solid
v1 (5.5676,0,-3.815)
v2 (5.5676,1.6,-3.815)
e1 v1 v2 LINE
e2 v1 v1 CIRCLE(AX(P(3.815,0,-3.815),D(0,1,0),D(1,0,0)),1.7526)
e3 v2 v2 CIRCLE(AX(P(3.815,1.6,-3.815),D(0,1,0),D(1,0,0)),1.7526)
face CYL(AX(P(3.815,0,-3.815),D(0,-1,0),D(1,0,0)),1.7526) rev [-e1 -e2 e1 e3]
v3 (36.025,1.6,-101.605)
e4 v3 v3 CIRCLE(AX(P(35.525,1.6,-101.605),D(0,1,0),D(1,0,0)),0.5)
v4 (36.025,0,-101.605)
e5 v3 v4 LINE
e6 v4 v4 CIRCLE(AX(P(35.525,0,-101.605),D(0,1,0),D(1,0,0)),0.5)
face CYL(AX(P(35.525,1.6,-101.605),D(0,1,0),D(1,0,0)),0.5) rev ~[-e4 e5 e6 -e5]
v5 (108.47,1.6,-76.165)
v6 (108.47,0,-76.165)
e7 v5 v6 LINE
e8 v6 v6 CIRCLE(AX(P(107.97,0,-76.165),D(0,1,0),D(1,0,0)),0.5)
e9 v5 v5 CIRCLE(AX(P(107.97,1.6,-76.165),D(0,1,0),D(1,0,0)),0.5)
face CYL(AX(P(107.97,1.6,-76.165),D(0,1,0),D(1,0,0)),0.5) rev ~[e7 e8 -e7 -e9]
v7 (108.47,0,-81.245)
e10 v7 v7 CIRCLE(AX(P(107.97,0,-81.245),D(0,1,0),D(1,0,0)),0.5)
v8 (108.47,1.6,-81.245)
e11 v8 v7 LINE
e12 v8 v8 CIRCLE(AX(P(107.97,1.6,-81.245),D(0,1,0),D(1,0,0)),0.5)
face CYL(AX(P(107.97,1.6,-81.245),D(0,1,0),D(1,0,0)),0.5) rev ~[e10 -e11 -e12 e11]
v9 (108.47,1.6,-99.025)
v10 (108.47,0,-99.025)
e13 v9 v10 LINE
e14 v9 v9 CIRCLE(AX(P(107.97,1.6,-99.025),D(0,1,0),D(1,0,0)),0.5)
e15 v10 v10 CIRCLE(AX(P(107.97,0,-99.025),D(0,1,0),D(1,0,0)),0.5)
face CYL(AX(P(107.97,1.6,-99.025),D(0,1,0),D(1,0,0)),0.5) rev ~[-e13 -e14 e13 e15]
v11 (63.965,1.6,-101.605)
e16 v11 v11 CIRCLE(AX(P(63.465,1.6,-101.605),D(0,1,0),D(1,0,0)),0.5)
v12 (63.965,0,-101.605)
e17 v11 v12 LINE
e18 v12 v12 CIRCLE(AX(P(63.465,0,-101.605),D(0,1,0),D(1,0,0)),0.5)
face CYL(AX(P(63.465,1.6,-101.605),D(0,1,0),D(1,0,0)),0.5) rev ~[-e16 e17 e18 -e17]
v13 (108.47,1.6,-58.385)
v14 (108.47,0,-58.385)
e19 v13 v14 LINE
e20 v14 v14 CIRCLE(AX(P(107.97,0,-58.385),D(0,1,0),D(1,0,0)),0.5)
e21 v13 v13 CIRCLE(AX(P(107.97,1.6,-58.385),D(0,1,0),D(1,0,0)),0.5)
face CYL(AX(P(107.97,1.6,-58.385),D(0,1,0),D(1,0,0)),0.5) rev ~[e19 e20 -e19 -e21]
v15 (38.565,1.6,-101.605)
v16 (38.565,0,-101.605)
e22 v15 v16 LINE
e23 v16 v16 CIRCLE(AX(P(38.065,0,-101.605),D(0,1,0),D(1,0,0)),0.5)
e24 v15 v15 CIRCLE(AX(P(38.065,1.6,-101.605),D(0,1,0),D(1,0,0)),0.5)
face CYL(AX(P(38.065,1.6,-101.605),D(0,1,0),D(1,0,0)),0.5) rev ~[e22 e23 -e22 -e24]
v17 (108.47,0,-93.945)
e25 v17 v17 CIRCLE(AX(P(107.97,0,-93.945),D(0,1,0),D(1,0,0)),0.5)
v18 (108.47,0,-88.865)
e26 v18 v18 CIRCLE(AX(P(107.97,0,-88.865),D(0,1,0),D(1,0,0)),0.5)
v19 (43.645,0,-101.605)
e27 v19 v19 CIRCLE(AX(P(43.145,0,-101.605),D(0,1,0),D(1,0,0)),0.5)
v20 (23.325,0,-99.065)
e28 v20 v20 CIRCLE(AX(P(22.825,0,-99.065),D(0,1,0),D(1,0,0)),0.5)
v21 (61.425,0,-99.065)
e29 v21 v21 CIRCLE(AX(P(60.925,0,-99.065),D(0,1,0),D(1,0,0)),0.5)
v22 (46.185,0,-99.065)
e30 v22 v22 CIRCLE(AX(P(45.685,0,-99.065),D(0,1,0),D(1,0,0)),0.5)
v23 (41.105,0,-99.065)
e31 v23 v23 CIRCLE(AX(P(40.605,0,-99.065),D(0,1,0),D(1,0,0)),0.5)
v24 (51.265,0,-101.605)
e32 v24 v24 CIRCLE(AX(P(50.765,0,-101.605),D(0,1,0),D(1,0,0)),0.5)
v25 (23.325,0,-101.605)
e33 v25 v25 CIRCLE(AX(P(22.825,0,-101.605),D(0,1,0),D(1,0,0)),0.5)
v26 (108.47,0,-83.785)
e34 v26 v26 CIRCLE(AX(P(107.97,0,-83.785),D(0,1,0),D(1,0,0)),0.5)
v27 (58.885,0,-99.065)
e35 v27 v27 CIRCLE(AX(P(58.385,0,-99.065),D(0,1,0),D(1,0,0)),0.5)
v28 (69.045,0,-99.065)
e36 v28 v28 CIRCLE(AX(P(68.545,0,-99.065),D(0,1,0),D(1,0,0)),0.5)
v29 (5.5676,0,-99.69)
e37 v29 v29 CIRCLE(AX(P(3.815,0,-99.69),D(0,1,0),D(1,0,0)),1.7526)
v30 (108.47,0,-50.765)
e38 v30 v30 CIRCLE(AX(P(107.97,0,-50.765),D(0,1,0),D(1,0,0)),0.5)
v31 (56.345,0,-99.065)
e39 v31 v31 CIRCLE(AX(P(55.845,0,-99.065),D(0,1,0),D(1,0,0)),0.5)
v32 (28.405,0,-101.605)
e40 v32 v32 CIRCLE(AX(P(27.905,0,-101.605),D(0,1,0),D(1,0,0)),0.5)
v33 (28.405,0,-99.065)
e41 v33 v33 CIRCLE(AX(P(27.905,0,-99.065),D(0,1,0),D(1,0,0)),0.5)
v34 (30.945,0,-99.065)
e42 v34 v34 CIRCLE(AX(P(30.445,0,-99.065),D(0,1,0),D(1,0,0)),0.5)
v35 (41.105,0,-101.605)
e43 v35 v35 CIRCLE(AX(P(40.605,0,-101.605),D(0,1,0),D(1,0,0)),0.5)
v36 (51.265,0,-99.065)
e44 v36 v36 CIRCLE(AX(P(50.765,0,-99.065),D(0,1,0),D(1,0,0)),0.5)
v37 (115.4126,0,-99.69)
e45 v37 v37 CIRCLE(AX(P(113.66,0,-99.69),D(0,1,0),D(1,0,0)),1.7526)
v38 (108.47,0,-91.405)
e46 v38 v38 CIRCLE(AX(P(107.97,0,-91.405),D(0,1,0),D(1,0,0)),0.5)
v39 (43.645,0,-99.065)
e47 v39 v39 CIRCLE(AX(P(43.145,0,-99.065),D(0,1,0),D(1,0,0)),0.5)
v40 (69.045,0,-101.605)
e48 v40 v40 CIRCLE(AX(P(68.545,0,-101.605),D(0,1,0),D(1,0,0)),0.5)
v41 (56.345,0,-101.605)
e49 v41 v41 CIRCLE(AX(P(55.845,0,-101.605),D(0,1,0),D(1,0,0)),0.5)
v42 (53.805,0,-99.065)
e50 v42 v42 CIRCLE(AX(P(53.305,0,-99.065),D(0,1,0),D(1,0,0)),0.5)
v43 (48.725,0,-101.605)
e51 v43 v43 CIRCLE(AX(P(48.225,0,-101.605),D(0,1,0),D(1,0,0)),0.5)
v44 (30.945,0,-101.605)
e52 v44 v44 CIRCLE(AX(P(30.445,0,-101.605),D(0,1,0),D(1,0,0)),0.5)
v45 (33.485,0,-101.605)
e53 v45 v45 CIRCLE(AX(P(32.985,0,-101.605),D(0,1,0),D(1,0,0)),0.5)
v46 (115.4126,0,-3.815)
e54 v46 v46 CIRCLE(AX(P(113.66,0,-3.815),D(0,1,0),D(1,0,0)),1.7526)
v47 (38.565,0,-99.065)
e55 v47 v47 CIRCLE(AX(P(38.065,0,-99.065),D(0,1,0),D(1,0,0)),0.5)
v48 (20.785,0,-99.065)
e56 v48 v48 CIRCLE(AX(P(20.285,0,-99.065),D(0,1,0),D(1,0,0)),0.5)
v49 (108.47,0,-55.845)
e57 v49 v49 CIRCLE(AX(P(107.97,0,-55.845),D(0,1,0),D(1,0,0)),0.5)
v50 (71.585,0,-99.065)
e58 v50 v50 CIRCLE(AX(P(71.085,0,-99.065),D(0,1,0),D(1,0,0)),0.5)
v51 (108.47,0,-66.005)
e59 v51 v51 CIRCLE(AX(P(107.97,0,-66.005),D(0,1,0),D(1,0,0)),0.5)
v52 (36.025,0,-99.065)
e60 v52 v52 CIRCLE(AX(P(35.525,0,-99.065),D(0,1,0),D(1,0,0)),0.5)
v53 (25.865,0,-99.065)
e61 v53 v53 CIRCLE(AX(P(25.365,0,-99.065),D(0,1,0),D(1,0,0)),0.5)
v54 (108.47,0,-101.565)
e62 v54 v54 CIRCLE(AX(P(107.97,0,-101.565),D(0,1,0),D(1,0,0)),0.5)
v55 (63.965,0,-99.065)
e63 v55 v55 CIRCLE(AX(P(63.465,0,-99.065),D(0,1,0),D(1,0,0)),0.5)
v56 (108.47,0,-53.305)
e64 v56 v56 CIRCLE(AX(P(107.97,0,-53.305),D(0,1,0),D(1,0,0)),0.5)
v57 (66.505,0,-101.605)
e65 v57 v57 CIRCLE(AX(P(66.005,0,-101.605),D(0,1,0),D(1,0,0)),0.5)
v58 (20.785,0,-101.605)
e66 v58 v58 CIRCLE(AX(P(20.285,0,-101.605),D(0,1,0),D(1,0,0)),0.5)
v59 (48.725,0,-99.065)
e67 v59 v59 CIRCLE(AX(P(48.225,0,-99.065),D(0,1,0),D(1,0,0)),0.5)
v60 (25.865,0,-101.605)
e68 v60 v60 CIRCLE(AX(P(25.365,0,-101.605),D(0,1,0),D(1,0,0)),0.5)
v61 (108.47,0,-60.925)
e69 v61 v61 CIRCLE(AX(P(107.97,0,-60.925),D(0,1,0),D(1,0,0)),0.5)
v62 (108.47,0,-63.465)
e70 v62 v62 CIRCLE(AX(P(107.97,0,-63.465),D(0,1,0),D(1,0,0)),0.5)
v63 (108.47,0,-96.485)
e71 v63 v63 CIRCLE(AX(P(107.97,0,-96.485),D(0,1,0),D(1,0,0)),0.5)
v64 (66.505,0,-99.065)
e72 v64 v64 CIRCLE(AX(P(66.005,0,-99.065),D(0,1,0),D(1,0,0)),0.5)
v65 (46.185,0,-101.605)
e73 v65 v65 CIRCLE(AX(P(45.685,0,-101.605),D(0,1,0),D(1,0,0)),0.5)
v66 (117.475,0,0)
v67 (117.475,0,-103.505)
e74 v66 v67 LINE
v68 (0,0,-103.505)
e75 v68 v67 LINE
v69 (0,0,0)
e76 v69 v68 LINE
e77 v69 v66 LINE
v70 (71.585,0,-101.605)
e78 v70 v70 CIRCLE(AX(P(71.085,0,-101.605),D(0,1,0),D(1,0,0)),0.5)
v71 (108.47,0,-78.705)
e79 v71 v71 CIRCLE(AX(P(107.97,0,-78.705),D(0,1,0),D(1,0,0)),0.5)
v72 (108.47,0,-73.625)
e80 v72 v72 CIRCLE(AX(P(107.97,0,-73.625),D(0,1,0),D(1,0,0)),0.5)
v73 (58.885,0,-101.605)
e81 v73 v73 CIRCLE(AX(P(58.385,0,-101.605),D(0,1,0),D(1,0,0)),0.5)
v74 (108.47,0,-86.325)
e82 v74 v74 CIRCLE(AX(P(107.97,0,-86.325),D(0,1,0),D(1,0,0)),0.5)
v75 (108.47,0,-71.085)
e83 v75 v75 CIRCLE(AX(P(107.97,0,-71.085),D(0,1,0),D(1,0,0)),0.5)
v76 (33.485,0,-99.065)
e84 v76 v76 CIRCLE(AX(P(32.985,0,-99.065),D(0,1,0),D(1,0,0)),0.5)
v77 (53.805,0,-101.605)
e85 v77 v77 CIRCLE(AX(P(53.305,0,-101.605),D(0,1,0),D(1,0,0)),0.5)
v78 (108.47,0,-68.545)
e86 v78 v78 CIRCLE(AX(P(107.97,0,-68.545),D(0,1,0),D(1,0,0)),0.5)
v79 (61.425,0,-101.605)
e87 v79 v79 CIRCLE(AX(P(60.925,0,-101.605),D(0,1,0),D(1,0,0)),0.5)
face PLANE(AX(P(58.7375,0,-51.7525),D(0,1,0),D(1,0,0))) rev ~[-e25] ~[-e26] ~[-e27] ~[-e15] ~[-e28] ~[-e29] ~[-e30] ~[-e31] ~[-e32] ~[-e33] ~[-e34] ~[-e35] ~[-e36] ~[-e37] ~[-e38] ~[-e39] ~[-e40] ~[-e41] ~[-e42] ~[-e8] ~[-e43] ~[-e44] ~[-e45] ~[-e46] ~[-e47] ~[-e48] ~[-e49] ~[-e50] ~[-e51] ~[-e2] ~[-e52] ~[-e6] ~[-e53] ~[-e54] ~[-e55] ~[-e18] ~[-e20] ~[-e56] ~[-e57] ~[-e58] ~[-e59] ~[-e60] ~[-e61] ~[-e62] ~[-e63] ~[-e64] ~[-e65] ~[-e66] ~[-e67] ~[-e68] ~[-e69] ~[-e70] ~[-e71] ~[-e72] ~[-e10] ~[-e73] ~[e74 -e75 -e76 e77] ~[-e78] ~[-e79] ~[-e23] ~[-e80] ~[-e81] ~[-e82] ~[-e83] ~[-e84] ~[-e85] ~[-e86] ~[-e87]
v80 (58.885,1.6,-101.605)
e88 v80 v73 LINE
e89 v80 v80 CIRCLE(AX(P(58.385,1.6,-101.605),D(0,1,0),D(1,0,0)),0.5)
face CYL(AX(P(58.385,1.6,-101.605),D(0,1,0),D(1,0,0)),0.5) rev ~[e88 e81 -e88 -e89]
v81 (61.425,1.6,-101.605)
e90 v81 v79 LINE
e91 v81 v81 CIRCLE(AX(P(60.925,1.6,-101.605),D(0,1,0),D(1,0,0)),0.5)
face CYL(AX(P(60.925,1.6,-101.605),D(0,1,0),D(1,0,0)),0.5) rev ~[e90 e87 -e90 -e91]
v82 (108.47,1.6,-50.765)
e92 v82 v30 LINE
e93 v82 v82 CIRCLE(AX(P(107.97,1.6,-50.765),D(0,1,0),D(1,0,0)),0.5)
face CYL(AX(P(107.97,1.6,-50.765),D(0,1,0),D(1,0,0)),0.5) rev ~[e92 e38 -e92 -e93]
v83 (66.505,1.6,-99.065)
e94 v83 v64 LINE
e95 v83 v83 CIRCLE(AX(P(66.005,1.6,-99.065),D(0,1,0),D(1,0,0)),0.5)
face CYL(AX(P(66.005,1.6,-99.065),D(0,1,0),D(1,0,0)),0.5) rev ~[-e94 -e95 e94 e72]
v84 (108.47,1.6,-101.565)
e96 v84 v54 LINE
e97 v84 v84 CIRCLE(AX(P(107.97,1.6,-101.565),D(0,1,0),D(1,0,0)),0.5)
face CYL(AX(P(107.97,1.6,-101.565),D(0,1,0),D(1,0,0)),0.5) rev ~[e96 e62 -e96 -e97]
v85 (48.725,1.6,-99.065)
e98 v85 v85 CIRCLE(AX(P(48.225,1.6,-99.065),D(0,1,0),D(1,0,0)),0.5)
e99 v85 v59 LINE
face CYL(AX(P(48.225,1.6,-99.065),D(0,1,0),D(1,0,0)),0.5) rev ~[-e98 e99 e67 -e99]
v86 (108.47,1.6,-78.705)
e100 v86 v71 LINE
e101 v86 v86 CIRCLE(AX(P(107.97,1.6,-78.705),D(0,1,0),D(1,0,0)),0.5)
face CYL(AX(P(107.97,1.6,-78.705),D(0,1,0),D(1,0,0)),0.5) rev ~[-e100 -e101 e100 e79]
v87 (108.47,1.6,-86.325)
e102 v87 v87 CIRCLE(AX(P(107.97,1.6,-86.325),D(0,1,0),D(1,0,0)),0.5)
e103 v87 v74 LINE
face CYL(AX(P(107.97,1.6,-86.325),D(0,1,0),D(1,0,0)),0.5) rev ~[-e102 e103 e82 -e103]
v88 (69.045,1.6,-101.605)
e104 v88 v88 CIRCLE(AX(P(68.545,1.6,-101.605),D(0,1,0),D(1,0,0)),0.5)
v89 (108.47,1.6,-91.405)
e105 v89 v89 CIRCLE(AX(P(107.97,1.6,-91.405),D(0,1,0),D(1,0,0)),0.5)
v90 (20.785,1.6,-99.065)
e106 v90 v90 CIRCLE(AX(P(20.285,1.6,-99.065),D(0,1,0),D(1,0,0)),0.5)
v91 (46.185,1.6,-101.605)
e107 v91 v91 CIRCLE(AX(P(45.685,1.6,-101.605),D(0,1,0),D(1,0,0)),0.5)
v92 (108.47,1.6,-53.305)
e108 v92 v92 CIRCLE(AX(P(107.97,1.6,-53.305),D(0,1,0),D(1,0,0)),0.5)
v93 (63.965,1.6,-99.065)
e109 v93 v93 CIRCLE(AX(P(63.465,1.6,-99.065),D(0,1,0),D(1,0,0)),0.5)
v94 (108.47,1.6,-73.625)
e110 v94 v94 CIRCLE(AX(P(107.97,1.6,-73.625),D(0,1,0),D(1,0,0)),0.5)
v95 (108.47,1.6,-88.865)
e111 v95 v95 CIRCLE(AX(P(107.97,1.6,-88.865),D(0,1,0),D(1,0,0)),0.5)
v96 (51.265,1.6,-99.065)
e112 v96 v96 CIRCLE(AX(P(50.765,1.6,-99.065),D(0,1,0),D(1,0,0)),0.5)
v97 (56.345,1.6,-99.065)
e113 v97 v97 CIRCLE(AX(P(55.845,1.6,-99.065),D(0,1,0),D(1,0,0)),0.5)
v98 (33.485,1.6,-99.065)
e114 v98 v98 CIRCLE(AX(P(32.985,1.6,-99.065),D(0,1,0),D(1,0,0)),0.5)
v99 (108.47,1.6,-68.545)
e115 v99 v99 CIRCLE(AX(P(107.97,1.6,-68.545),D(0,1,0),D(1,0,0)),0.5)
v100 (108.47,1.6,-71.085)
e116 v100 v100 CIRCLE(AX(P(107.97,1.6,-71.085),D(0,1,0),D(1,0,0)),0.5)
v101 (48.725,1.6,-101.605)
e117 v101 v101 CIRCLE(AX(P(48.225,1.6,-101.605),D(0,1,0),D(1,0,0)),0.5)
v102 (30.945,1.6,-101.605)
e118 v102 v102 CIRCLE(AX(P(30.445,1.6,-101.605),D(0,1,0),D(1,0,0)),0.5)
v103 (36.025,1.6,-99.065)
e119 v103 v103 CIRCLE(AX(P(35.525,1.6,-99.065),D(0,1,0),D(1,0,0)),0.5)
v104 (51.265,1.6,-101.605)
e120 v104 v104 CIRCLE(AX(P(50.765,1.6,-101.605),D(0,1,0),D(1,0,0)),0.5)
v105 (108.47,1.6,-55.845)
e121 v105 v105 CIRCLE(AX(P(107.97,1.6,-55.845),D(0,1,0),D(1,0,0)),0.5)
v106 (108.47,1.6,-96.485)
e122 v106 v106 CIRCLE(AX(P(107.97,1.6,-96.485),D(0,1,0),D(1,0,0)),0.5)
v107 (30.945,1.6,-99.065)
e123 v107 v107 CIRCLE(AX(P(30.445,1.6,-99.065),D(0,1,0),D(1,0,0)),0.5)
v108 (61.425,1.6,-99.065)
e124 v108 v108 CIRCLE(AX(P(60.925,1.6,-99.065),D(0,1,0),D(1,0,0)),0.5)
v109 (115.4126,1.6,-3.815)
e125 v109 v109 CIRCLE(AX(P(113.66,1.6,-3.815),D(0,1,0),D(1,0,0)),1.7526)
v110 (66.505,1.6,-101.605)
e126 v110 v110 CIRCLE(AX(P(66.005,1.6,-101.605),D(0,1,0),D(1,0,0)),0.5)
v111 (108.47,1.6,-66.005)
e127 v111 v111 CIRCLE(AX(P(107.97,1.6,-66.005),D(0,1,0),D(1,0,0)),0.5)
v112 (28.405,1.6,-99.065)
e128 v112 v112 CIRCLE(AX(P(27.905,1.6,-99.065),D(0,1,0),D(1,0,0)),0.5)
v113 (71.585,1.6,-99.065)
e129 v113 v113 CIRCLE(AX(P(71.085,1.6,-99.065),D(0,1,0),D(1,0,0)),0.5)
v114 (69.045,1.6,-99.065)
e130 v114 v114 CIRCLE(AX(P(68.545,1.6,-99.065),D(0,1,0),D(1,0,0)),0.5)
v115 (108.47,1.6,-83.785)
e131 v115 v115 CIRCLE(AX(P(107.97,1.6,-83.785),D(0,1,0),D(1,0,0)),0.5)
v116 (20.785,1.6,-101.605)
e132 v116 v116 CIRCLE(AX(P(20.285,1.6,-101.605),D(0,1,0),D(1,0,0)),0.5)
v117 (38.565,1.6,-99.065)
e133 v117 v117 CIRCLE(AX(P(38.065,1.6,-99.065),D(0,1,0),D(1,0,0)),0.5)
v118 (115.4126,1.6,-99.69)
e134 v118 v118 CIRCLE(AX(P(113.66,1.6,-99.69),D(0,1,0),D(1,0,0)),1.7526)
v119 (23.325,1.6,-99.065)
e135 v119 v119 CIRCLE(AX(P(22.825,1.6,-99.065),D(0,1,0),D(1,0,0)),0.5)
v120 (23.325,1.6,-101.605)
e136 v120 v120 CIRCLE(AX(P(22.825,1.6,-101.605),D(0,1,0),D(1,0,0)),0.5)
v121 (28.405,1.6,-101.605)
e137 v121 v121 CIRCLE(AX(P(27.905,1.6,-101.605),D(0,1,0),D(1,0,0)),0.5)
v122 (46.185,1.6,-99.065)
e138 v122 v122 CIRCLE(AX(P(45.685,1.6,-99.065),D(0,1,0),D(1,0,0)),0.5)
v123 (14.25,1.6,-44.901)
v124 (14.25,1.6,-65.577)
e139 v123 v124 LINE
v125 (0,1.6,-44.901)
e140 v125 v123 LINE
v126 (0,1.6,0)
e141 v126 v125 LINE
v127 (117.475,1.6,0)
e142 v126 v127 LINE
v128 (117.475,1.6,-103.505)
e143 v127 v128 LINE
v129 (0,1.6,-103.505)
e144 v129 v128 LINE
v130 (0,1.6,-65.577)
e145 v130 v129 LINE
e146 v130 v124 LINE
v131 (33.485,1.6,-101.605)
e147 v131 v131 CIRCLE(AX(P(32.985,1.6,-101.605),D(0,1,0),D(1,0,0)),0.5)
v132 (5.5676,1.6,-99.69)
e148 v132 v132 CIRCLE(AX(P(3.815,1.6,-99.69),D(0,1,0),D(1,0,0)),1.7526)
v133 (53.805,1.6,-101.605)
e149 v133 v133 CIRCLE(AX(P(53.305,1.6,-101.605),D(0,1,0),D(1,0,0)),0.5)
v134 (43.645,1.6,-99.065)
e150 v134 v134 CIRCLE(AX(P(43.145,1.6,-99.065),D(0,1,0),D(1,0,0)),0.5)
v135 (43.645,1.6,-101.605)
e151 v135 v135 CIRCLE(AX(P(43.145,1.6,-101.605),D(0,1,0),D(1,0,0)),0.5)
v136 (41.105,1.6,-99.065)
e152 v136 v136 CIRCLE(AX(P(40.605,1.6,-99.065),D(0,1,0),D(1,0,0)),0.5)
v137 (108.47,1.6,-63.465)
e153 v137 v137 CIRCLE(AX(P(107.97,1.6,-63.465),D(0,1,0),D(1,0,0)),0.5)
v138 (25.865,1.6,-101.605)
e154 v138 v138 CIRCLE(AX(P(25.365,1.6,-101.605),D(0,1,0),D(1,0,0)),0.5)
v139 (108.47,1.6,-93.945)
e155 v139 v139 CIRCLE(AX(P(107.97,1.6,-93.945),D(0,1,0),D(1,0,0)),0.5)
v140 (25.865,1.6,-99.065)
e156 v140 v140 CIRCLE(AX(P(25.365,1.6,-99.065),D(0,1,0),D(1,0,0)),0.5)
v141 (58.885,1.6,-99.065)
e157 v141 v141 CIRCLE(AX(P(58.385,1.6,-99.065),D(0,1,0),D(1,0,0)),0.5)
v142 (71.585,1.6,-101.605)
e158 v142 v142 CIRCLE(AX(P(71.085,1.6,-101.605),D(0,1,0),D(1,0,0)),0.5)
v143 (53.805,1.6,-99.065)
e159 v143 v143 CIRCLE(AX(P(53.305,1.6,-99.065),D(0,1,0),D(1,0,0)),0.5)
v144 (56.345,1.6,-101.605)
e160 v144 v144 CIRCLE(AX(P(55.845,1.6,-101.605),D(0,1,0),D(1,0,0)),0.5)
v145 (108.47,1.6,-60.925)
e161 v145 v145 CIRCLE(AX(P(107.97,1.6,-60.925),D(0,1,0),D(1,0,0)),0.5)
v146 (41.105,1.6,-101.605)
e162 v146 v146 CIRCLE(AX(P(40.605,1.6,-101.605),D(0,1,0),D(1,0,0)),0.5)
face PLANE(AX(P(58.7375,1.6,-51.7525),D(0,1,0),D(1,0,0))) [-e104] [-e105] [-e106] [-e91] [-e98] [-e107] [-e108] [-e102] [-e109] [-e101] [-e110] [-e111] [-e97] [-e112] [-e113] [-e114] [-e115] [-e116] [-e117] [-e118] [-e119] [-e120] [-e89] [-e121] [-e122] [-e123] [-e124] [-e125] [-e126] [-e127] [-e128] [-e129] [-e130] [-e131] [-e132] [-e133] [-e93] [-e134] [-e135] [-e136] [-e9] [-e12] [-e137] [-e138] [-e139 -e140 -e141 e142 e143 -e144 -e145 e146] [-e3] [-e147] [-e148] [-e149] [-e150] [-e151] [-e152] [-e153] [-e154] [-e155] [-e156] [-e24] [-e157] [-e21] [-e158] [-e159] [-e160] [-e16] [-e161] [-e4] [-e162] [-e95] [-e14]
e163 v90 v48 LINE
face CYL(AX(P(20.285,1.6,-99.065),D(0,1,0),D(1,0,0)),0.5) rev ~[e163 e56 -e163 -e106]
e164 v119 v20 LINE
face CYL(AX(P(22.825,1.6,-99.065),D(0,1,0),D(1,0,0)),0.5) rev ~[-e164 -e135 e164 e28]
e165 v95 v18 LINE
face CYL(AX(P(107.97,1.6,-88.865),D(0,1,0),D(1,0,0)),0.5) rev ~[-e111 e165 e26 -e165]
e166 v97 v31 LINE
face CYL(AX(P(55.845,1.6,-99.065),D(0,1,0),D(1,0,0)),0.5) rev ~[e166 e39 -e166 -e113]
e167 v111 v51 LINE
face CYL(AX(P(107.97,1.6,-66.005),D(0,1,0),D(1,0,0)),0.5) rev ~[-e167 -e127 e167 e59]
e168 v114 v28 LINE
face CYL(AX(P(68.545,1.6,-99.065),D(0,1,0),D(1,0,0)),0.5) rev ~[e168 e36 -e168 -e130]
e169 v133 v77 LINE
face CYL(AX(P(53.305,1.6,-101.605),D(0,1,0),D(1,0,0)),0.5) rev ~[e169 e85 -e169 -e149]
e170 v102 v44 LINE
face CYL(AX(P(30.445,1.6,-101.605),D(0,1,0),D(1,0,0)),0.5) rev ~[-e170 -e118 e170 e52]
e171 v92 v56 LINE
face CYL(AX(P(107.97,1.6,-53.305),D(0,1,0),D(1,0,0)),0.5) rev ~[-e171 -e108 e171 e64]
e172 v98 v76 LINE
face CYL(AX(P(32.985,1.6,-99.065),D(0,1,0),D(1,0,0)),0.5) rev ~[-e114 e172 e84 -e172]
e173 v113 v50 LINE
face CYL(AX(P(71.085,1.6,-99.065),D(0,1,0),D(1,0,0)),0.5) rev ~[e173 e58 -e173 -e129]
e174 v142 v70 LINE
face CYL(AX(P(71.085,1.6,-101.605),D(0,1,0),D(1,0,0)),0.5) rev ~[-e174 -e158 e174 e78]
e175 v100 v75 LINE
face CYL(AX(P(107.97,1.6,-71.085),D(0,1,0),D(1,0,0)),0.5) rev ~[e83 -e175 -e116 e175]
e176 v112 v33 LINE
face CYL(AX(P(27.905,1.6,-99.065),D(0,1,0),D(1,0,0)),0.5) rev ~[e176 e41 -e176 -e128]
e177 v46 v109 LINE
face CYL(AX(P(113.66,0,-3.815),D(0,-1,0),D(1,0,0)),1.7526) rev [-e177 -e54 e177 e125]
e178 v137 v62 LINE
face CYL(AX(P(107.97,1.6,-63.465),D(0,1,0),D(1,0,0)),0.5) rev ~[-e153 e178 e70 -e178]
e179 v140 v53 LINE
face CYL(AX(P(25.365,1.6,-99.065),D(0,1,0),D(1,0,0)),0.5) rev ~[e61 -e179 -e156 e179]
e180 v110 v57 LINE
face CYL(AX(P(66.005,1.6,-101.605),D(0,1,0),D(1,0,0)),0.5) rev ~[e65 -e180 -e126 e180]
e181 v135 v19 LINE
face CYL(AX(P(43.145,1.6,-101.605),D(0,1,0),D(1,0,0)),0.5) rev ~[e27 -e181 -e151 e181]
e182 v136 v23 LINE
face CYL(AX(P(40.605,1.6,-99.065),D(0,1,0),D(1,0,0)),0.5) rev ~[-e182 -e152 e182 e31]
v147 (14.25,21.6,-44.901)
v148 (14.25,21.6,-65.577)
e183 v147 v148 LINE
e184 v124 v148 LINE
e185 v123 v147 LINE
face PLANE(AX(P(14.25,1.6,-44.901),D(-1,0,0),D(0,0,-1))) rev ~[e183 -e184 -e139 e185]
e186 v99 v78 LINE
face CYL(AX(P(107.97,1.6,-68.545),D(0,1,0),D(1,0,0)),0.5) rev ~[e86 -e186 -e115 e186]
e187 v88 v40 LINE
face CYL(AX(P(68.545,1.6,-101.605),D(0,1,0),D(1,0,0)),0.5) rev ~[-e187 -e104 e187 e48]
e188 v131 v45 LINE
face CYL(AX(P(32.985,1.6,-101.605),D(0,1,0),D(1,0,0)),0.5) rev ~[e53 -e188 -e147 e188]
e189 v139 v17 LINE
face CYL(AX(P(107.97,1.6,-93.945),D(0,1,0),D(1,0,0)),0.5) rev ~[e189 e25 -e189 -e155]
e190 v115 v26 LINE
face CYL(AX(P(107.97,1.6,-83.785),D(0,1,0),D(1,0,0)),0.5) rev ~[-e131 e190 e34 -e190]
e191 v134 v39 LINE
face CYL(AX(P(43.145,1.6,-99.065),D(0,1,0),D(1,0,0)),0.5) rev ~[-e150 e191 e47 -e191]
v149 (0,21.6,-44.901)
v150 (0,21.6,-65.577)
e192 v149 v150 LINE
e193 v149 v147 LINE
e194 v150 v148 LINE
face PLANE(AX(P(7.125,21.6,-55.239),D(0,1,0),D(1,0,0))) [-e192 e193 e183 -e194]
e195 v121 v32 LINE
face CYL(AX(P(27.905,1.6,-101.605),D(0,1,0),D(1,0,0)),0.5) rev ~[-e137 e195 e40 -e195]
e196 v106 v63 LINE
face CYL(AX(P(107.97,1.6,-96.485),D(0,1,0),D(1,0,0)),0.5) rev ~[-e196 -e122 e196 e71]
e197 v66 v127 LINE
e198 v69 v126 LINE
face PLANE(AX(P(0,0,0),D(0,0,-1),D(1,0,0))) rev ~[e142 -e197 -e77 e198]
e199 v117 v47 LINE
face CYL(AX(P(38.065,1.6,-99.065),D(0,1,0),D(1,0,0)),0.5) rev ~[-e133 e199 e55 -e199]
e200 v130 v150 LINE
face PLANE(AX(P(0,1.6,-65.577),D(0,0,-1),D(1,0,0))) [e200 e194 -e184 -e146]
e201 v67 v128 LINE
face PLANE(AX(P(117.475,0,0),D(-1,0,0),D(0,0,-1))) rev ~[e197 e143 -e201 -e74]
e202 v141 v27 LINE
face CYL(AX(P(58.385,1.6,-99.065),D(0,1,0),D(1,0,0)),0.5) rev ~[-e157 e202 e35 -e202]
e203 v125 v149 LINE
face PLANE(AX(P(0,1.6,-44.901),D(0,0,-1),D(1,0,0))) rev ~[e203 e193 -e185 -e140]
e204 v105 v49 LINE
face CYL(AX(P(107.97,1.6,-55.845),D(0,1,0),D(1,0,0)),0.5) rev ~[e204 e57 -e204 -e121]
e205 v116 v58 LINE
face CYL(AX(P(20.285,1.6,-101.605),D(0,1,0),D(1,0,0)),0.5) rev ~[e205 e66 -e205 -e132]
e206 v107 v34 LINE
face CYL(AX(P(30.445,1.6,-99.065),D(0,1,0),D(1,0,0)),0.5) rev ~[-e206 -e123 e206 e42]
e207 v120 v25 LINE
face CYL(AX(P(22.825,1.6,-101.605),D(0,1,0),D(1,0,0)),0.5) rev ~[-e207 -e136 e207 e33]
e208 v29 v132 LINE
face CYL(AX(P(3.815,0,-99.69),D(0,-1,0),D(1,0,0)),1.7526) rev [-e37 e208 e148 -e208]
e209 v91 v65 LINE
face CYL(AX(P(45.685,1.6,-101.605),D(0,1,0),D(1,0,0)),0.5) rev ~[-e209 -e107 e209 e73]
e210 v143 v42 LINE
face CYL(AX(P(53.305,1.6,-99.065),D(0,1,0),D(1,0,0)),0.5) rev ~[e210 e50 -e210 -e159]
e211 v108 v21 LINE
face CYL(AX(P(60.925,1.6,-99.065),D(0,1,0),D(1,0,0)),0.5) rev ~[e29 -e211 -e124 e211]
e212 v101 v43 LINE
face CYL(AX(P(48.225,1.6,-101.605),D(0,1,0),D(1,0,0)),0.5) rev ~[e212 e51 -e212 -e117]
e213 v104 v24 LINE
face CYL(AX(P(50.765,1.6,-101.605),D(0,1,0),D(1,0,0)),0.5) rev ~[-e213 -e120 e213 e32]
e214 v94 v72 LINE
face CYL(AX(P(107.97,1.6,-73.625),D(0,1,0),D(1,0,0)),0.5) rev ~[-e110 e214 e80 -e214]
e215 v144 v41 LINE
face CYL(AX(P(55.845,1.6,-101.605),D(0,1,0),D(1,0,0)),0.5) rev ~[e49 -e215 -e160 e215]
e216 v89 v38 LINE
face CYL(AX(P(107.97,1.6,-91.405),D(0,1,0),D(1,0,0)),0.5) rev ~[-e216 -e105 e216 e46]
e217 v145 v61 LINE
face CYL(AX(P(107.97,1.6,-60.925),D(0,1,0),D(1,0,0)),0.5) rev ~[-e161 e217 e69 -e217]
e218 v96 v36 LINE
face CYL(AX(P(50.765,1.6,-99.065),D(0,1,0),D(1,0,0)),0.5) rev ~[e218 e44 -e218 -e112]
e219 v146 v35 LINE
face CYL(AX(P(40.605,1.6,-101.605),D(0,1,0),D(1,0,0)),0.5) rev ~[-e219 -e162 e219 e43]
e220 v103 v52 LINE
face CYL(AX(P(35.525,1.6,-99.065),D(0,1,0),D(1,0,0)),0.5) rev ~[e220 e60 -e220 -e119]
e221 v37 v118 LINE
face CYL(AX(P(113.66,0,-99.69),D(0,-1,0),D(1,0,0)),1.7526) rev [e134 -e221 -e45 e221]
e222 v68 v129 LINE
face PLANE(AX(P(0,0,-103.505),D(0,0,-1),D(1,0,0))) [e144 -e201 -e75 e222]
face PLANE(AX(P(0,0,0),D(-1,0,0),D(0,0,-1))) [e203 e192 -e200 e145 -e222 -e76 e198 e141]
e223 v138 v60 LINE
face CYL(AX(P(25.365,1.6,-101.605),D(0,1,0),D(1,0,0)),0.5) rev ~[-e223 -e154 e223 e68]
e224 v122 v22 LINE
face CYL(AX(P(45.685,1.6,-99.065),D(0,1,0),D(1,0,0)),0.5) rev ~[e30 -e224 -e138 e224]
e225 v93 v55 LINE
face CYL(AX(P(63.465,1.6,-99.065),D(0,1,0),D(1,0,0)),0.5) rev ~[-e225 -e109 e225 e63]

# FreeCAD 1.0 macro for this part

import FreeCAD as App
import Part
import Sketcher
Q = App.Units.Quantity

doc = App.newDocument("Part")
body = doc.addObject("PartDesign::Body", "Body")

sketch1 = body.newObject("Sketcher::SketchObject", "Sketch")
sketch1.AttachmentSupport = (doc.getObject("XZ_Plane"), [""])
sketch1.MapMode = "FlatFace"
sketch1.addGeometry(Part.LineSegment(App.Vector(0, -103.505, 0), App.Vector(0, 0, 0)), False)
sketch1.addGeometry(Part.LineSegment(App.Vector(0, 0, 0), App.Vector(117.475, 0, 0)), False)
sketch1.addGeometry(Part.LineSegment(App.Vector(117.475, 0, 0), App.Vector(117.475, -103.505, 0)), False)
sketch1.addGeometry(Part.LineSegment(App.Vector(117.475, -103.505, 0), App.Vector(0, -103.505, 0)), False)
sketch1.addGeometry(Part.Circle(App.Vector(3.815, -3.815, 0), App.Vector(0, 0, 1), 1.7526), False)
sketch1.addGeometry(Part.Circle(App.Vector(113.66, -3.815, 0), App.Vector(0, 0, 1), 1.7526), False)
sketch1.addGeometry(Part.Circle(App.Vector(3.815, -99.69, 0), App.Vector(0, 0, 1), 1.7526), False)
sketch1.addGeometry(Part.Circle(App.Vector(113.66, -99.69, 0), App.Vector(0, 0, 1), 1.7526), False)
sketch1.addConstraint(Sketcher.Constraint("Coincident", 0, 2, 1, 1))
sketch1.addConstraint(Sketcher.Constraint("Coincident", 1, 2, 2, 1))
sketch1.addConstraint(Sketcher.Constraint("Coincident", 2, 2, 3, 1))
sketch1.addConstraint(Sketcher.Constraint("Coincident", 3, 2, 0, 1))
sketch1.addConstraint(Sketcher.Constraint("Vertical", 0))
sketch1.addConstraint(Sketcher.Constraint("Horizontal", 1))
sketch1.addConstraint(Sketcher.Constraint("Vertical", 2))
sketch1.addConstraint(Sketcher.Constraint("Horizontal", 3))
sketch1.addConstraint(Sketcher.Constraint("Coincident", 0, 2, -1, 1))
sketch1.addConstraint(Sketcher.Constraint("Equal", 4, 5))
sketch1.addConstraint(Sketcher.Constraint("Equal", 5, 6))
sketch1.addConstraint(Sketcher.Constraint("Equal", 6, 7))
sketch1.addConstraint(Sketcher.Constraint("Horizontal", 4, 3, 5, 3))
sketch1.addConstraint(Sketcher.Constraint("Horizontal", 6, 3, 7, 3))
sketch1.addConstraint(Sketcher.Constraint("Vertical", 4, 3, 6, 3))
sketch1.addConstraint(Sketcher.Constraint("Vertical", 5, 3, 7, 3))
sketch1.addConstraint(Sketcher.Constraint("Diameter", 4, Q("3.5052 mm")))
sketch1.addConstraint(Sketcher.Constraint("DistanceX", 1, 1, 1, 2, Q("117.475 mm")))
sketch1.addConstraint(Sketcher.Constraint("DistanceY", 0, 1, 0, 2, Q("103.505 mm")))
sketch1.addConstraint(Sketcher.Constraint("DistanceX", -1, 1, 5, 3, Q("113.66 mm")))
sketch1.addConstraint(Sketcher.Constraint("DistanceY", 6, 3, -1, 1, Q("99.69 mm")))
sketch1.addConstraint(Sketcher.Constraint("DistanceX", 4, 3, 1, 2, Q("113.66 mm")))
sketch1.addConstraint(Sketcher.Constraint("DistanceY", 2, 2, 5, 3, Q("99.69 mm")))
pad1 = body.newObject("PartDesign::Pad", "Pad")
pad1.Profile = sketch1
pad1.Length = 1.6
pad1.Reversed = True

sketch2 = body.newObject("Sketcher::SketchObject", "Sketch001")
sketch2.AttachmentSupport = (doc.getObject("XZ_Plane"), [""])
sketch2.MapMode = "FlatFace"
sketch2.AttachmentOffset = App.Placement(App.Vector(0, 0, -1.6), App.Rotation())
sketch2.addGeometry(Part.LineSegment(App.Vector(0, -65.577, 0), App.Vector(0, -44.901, 0)), False)
sketch2.addGeometry(Part.LineSegment(App.Vector(0, -44.901, 0), App.Vector(14.25, -44.901, 0)), False)
sketch2.addGeometry(Part.LineSegment(App.Vector(14.25, -44.901, 0), App.Vector(14.25, -65.577, 0)), False)
sketch2.addGeometry(Part.LineSegment(App.Vector(14.25, -65.577, 0), App.Vector(0, -65.577, 0)), False)
sketch2.addConstraint(Sketcher.Constraint("Coincident", 0, 2, 1, 1))
sketch2.addConstraint(Sketcher.Constraint("Coincident", 1, 2, 2, 1))
sketch2.addConstraint(Sketcher.Constraint("Coincident", 2, 2, 3, 1))
sketch2.addConstraint(Sketcher.Constraint("Coincident", 3, 2, 0, 1))
sketch2.addConstraint(Sketcher.Constraint("Vertical", 0))
sketch2.addConstraint(Sketcher.Constraint("Horizontal", 1))
sketch2.addConstraint(Sketcher.Constraint("Vertical", 2))
sketch2.addConstraint(Sketcher.Constraint("Horizontal", 3))
sketch2.addConstraint(Sketcher.Constraint("PointOnObject", 0, 2, -2))
sketch2.addConstraint(Sketcher.Constraint("DistanceX", 1, 1, 1, 2, Q("14.25 mm")))
sketch2.addConstraint(Sketcher.Constraint("DistanceY", 0, 1, 0, 2, Q("20.676 mm")))
sketch2.addConstraint(Sketcher.Constraint("DistanceY", 0, 2, -1, 1, Q("44.901 mm")))
pad2 = body.newObject("PartDesign::Pad", "Pad001")
pad2.Profile = sketch2
pad2.Length = 20
pad2.Reversed = True

sketch3 = body.newObject("Sketcher::SketchObject", "Sketch002")
sketch3.AttachmentSupport = (doc.getObject("XZ_Plane"), [""])
sketch3.MapMode = "FlatFace"
sketch3.AttachmentOffset = App.Placement(App.Vector(0, 0, -1.6), App.Rotation())
sketch3.addGeometry(Part.Circle(App.Vector(20.285, -101.605, 0), App.Vector(0, 0, 1), 0.5), False)
sketch3.addGeometry(Part.Circle(App.Vector(22.825, -101.605, 0), App.Vector(0, 0, 1), 0.5), False)
sketch3.addGeometry(Part.Circle(App.Vector(25.365, -101.605, 0), App.Vector(0, 0, 1), 0.5), False)
sketch3.addGeometry(Part.Circle(App.Vector(27.905, -101.605, 0), App.Vector(0, 0, 1), 0.5), False)
sketch3.addGeometry(Part.Circle(App.Vector(30.445, -101.605, 0), App.Vector(0, 0, 1), 0.5), False)
sketch3.addGeometry(Part.Circle(App.Vector(32.985, -101.605, 0), App.Vector(0, 0, 1), 0.5), False)
sketch3.addGeometry(Part.Circle(App.Vector(35.525, -101.605, 0), App.Vector(0, 0, 1), 0.5), False)
sketch3.addGeometry(Part.Circle(App.Vector(38.065, -101.605, 0), App.Vector(0, 0, 1), 0.5), False)
sketch3.addGeometry(Part.Circle(App.Vector(40.605, -101.605, 0), App.Vector(0, 0, 1), 0.5), False)
sketch3.addGeometry(Part.Circle(App.Vector(43.145, -101.605, 0), App.Vector(0, 0, 1), 0.5), False)
sketch3.addGeometry(Part.Circle(App.Vector(45.685, -101.605, 0), App.Vector(0, 0, 1), 0.5), False)
sketch3.addGeometry(Part.Circle(App.Vector(48.225, -101.605, 0), App.Vector(0, 0, 1), 0.5), False)
sketch3.addGeometry(Part.Circle(App.Vector(50.765, -101.605, 0), App.Vector(0, 0, 1), 0.5), False)
sketch3.addGeometry(Part.Circle(App.Vector(53.305, -101.605, 0), App.Vector(0, 0, 1), 0.5), False)
sketch3.addGeometry(Part.Circle(App.Vector(55.845, -101.605, 0), App.Vector(0, 0, 1), 0.5), False)
sketch3.addGeometry(Part.Circle(App.Vector(58.385, -101.605, 0), App.Vector(0, 0, 1), 0.5), False)
sketch3.addGeometry(Part.Circle(App.Vector(60.925, -101.605, 0), App.Vector(0, 0, 1), 0.5), False)
sketch3.addGeometry(Part.Circle(App.Vector(63.465, -101.605, 0), App.Vector(0, 0, 1), 0.5), False)
sketch3.addGeometry(Part.Circle(App.Vector(66.005, -101.605, 0), App.Vector(0, 0, 1), 0.5), False)
sketch3.addGeometry(Part.Circle(App.Vector(68.545, -101.605, 0), App.Vector(0, 0, 1), 0.5), False)
sketch3.addGeometry(Part.Circle(App.Vector(71.085, -101.605, 0), App.Vector(0, 0, 1), 0.5), False)
sketch3.addGeometry(Part.Circle(App.Vector(22.825, -99.065, 0), App.Vector(0, 0, 1), 0.5), False)
sketch3.addGeometry(Part.Circle(App.Vector(25.365, -99.065, 0), App.Vector(0, 0, 1), 0.5), False)
sketch3.addGeometry(Part.Circle(App.Vector(27.905, -99.065, 0), App.Vector(0, 0, 1), 0.5), False)
sketch3.addGeometry(Part.Circle(App.Vector(30.445, -99.065, 0), App.Vector(0, 0, 1), 0.5), False)
sketch3.addGeometry(Part.Circle(App.Vector(32.985, -99.065, 0), App.Vector(0, 0, 1), 0.5), False)
sketch3.addGeometry(Part.Circle(App.Vector(35.525, -99.065, 0), App.Vector(0, 0, 1), 0.5), False)
sketch3.addGeometry(Part.Circle(App.Vector(38.065, -99.065, 0), App.Vector(0, 0, 1), 0.5), False)
sketch3.addGeometry(Part.Circle(App.Vector(40.605, -99.065, 0), App.Vector(0, 0, 1), 0.5), False)
sketch3.addGeometry(Part.Circle(App.Vector(43.145, -99.065, 0), App.Vector(0, 0, 1), 0.5), False)
sketch3.addGeometry(Part.Circle(App.Vector(45.685, -99.065, 0), App.Vector(0, 0, 1), 0.5), False)
sketch3.addGeometry(Part.Circle(App.Vector(48.225, -99.065, 0), App.Vector(0, 0, 1), 0.5), False)
sketch3.addGeometry(Part.Circle(App.Vector(50.765, -99.065, 0), App.Vector(0, 0, 1), 0.5), False)
sketch3.addGeometry(Part.Circle(App.Vector(53.305, -99.065, 0), App.Vector(0, 0, 1), 0.5), False)
sketch3.addGeometry(Part.Circle(App.Vector(55.845, -99.065, 0), App.Vector(0, 0, 1), 0.5), False)
sketch3.addGeometry(Part.Circle(App.Vector(58.385, -99.065, 0), App.Vector(0, 0, 1), 0.5), False)
sketch3.addGeometry(Part.Circle(App.Vector(60.925, -99.065, 0), App.Vector(0, 0, 1), 0.5), False)
sketch3.addGeometry(Part.Circle(App.Vector(63.465, -99.065, 0), App.Vector(0, 0, 1), 0.5), False)
sketch3.addGeometry(Part.Circle(App.Vector(66.005, -99.065, 0), App.Vector(0, 0, 1), 0.5), False)
sketch3.addGeometry(Part.Circle(App.Vector(68.545, -99.065, 0), App.Vector(0, 0, 1), 0.5), False)
sketch3.addGeometry(Part.Circle(App.Vector(71.085, -99.065, 0), App.Vector(0, 0, 1), 0.5), False)
sketch3.addGeometry(Part.Circle(App.Vector(20.285, -99.065, 0), App.Vector(0, 0, 1), 0.5), False)
sketch3.addGeometry(Part.Circle(App.Vector(107.97, -101.565, 0), App.Vector(0, 0, 1), 0.5), False)
sketch3.addGeometry(Part.Circle(App.Vector(107.97, -99.025, 0), App.Vector(0, 0, 1), 0.5), False)
sketch3.addGeometry(Part.Circle(App.Vector(107.97, -96.485, 0), App.Vector(0, 0, 1), 0.5), False)
sketch3.addGeometry(Part.Circle(App.Vector(107.97, -93.945, 0), App.Vector(0, 0, 1), 0.5), False)
sketch3.addGeometry(Part.Circle(App.Vector(107.97, -91.405, 0), App.Vector(0, 0, 1), 0.5), False)
sketch3.addGeometry(Part.Circle(App.Vector(107.97, -88.865, 0), App.Vector(0, 0, 1), 0.5), False)
sketch3.addGeometry(Part.Circle(App.Vector(107.97, -86.325, 0), App.Vector(0, 0, 1), 0.5), False)
sketch3.addGeometry(Part.Circle(App.Vector(107.97, -83.785, 0), App.Vector(0, 0, 1), 0.5), False)
sketch3.addGeometry(Part.Circle(App.Vector(107.97, -81.245, 0), App.Vector(0, 0, 1), 0.5), False)
sketch3.addGeometry(Part.Circle(App.Vector(107.97, -78.705, 0), App.Vector(0, 0, 1), 0.5), False)
sketch3.addGeometry(Part.Circle(App.Vector(107.97, -76.165, 0), App.Vector(0, 0, 1), 0.5), False)
sketch3.addGeometry(Part.Circle(App.Vector(107.97, -73.625, 0), App.Vector(0, 0, 1), 0.5), False)
sketch3.addGeometry(Part.Circle(App.Vector(107.97, -71.085, 0), App.Vector(0, 0, 1), 0.5), False)
sketch3.addGeometry(Part.Circle(App.Vector(107.97, -68.545, 0), App.Vector(0, 0, 1), 0.5), False)
sketch3.addGeometry(Part.Circle(App.Vector(107.97, -66.005, 0), App.Vector(0, 0, 1), 0.5), False)
sketch3.addGeometry(Part.Circle(App.Vector(107.97, -63.465, 0), App.Vector(0, 0, 1), 0.5), False)
sketch3.addGeometry(Part.Circle(App.Vector(107.97, -60.925, 0), App.Vector(0, 0, 1), 0.5), False)
sketch3.addGeometry(Part.Circle(App.Vector(107.97, -58.385, 0), App.Vector(0, 0, 1), 0.5), False)
sketch3.addGeometry(Part.Circle(App.Vector(107.97, -55.845, 0), App.Vector(0, 0, 1), 0.5), False)
sketch3.addGeometry(Part.Circle(App.Vector(107.97, -53.305, 0), App.Vector(0, 0, 1), 0.5), False)
sketch3.addGeometry(Part.Circle(App.Vector(107.97, -50.765, 0), App.Vector(0, 0, 1), 0.5), False)
sketch3.addConstraint(Sketcher.Constraint("Equal", 0, 1))
sketch3.addConstraint(Sketcher.Constraint("Equal", 1, 2))
sketch3.addConstraint(Sketcher.Constraint("Equal", 2, 3))
sketch3.addConstraint(Sketcher.Constraint("Equal", 3, 4))
sketch3.addConstraint(Sketcher.Constraint("Equal", 4, 5))
sketch3.addConstraint(Sketcher.Constraint("Equal", 5, 6))
sketch3.addConstraint(Sketcher.Constraint("Equal", 6, 7))
sketch3.addConstraint(Sketcher.Constraint("Equal", 7, 8))
sketch3.addConstraint(Sketcher.Constraint("Equal", 8, 9))
sketch3.addConstraint(Sketcher.Constraint("Equal", 9, 10))
sketch3.addConstraint(Sketcher.Constraint("Equal", 10, 11))
sketch3.addConstraint(Sketcher.Constraint("Equal", 11, 12))
sketch3.addConstraint(Sketcher.Constraint("Equal", 12, 13))
sketch3.addConstraint(Sketcher.Constraint("Equal", 13, 14))
sketch3.addConstraint(Sketcher.Constraint("Equal", 14, 15))
sketch3.addConstraint(Sketcher.Constraint("Equal", 15, 16))
sketch3.addConstraint(Sketcher.Constraint("Equal", 16, 17))
sketch3.addConstraint(Sketcher.Constraint("Equal", 17, 18))
sketch3.addConstraint(Sketcher.Constraint("Equal", 18, 19))
sketch3.addConstraint(Sketcher.Constraint("Equal", 19, 20))
sketch3.addConstraint(Sketcher.Constraint("Equal", 20, 21))
sketch3.addConstraint(Sketcher.Constraint("Equal", 21, 22))
sketch3.addConstraint(Sketcher.Constraint("Equal", 22, 23))
sketch3.addConstraint(Sketcher.Constraint("Equal", 23, 24))
sketch3.addConstraint(Sketcher.Constraint("Equal", 24, 25))
sketch3.addConstraint(Sketcher.Constraint("Equal", 25, 26))
sketch3.addConstraint(Sketcher.Constraint("Equal", 26, 27))
sketch3.addConstraint(Sketcher.Constraint("Equal", 27, 28))
sketch3.addConstraint(Sketcher.Constraint("Equal", 28, 29))
sketch3.addConstraint(Sketcher.Constraint("Equal", 29, 30))
sketch3.addConstraint(Sketcher.Constraint("Equal", 30, 31))
sketch3.addConstraint(Sketcher.Constraint("Equal", 31, 32))
sketch3.addConstraint(Sketcher.Constraint("Equal", 32, 33))
sketch3.addConstraint(Sketcher.Constraint("Equal", 33, 34))
sketch3.addConstraint(Sketcher.Constraint("Equal", 34, 35))
sketch3.addConstraint(Sketcher.Constraint("Equal", 35, 36))
sketch3.addConstraint(Sketcher.Constraint("Equal", 36, 37))
sketch3.addConstraint(Sketcher.Constraint("Equal", 37, 38))
sketch3.addConstraint(Sketcher.Constraint("Equal", 38, 39))
sketch3.addConstraint(Sketcher.Constraint("Equal", 39, 40))
sketch3.addConstraint(Sketcher.Constraint("Equal", 40, 41))
sketch3.addConstraint(Sketcher.Constraint("Equal", 41, 42))
sketch3.addConstraint(Sketcher.Constraint("Equal", 42, 43))
sketch3.addConstraint(Sketcher.Constraint("Equal", 43, 44))
sketch3.addConstraint(Sketcher.Constraint("Equal", 44, 45))
sketch3.addConstraint(Sketcher.Constraint("Equal", 45, 46))
sketch3.addConstraint(Sketcher.Constraint("Equal", 46, 47))
sketch3.addConstraint(Sketcher.Constraint("Equal", 47, 48))
sketch3.addConstraint(Sketcher.Constraint("Equal", 48, 49))
sketch3.addConstraint(Sketcher.Constraint("Equal", 49, 50))
sketch3.addConstraint(Sketcher.Constraint("Equal", 50, 51))
sketch3.addConstraint(Sketcher.Constraint("Equal", 51, 52))
sketch3.addConstraint(Sketcher.Constraint("Equal", 52, 53))
sketch3.addConstraint(Sketcher.Constraint("Equal", 53, 54))
sketch3.addConstraint(Sketcher.Constraint("Equal", 54, 55))
sketch3.addConstraint(Sketcher.Constraint("Equal", 55, 56))
sketch3.addConstraint(Sketcher.Constraint("Equal", 56, 57))
sketch3.addConstraint(Sketcher.Constraint("Equal", 57, 58))
sketch3.addConstraint(Sketcher.Constraint("Equal", 58, 59))
sketch3.addConstraint(Sketcher.Constraint("Equal", 59, 60))
sketch3.addConstraint(Sketcher.Constraint("Equal", 60, 61))
sketch3.addConstraint(Sketcher.Constraint("Equal", 61, 62))
sketch3.addConstraint(Sketcher.Constraint("Horizontal", 0, 3, 1, 3))
sketch3.addConstraint(Sketcher.Constraint("Horizontal", 1, 3, 2, 3))
sketch3.addConstraint(Sketcher.Constraint("Horizontal", 2, 3, 3, 3))
sketch3.addConstraint(Sketcher.Constraint("Horizontal", 3, 3, 4, 3))
sketch3.addConstraint(Sketcher.Constraint("Horizontal", 4, 3, 5, 3))
sketch3.addConstraint(Sketcher.Constraint("Horizontal", 5, 3, 6, 3))
sketch3.addConstraint(Sketcher.Constraint("Horizontal", 6, 3, 7, 3))
sketch3.addConstraint(Sketcher.Constraint("Horizontal", 7, 3, 8, 3))
sketch3.addConstraint(Sketcher.Constraint("Horizontal", 8, 3, 9, 3))
sketch3.addConstraint(Sketcher.Constraint("Horizontal", 9, 3, 10, 3))
sketch3.addConstraint(Sketcher.Constraint("Horizontal", 10, 3, 11, 3))
sketch3.addConstraint(Sketcher.Constraint("Horizontal", 11, 3, 12, 3))
sketch3.addConstraint(Sketcher.Constraint("Horizontal", 12, 3, 13, 3))
sketch3.addConstraint(Sketcher.Constraint("Horizontal", 13, 3, 14, 3))
sketch3.addConstraint(Sketcher.Constraint("Horizontal", 14, 3, 15, 3))
sketch3.addConstraint(Sketcher.Constraint("Horizontal", 15, 3, 16, 3))
sketch3.addConstraint(Sketcher.Constraint("Horizontal", 16, 3, 17, 3))
sketch3.addConstraint(Sketcher.Constraint("Horizontal", 17, 3, 18, 3))
sketch3.addConstraint(Sketcher.Constraint("Horizontal", 18, 3, 19, 3))
sketch3.addConstraint(Sketcher.Constraint("Horizontal", 19, 3, 20, 3))
sketch3.addConstraint(Sketcher.Constraint("Horizontal", 21, 3, 22, 3))
sketch3.addConstraint(Sketcher.Constraint("Horizontal", 22, 3, 23, 3))
sketch3.addConstraint(Sketcher.Constraint("Horizontal", 23, 3, 24, 3))
sketch3.addConstraint(Sketcher.Constraint("Horizontal", 24, 3, 25, 3))
sketch3.addConstraint(Sketcher.Constraint("Horizontal", 25, 3, 26, 3))
sketch3.addConstraint(Sketcher.Constraint("Horizontal", 26, 3, 27, 3))
sketch3.addConstraint(Sketcher.Constraint("Horizontal", 27, 3, 28, 3))
sketch3.addConstraint(Sketcher.Constraint("Horizontal", 28, 3, 29, 3))
sketch3.addConstraint(Sketcher.Constraint("Horizontal", 29, 3, 30, 3))
sketch3.addConstraint(Sketcher.Constraint("Horizontal", 30, 3, 31, 3))
sketch3.addConstraint(Sketcher.Constraint("Horizontal", 31, 3, 32, 3))
sketch3.addConstraint(Sketcher.Constraint("Horizontal", 32, 3, 33, 3))
sketch3.addConstraint(Sketcher.Constraint("Horizontal", 33, 3, 34, 3))
sketch3.addConstraint(Sketcher.Constraint("Horizontal", 34, 3, 35, 3))
sketch3.addConstraint(Sketcher.Constraint("Horizontal", 35, 3, 36, 3))
sketch3.addConstraint(Sketcher.Constraint("Horizontal", 36, 3, 37, 3))
sketch3.addConstraint(Sketcher.Constraint("Horizontal", 37, 3, 38, 3))
sketch3.addConstraint(Sketcher.Constraint("Horizontal", 38, 3, 39, 3))
sketch3.addConstraint(Sketcher.Constraint("Horizontal", 39, 3, 40, 3))
sketch3.addConstraint(Sketcher.Constraint("Horizontal", 40, 3, 41, 3))
sketch3.addConstraint(Sketcher.Constraint("Vertical", 1, 3, 21, 3))
sketch3.addConstraint(Sketcher.Constraint("Vertical", 2, 3, 22, 3))
sketch3.addConstraint(Sketcher.Constraint("Vertical", 3, 3, 23, 3))
sketch3.addConstraint(Sketcher.Constraint("Vertical", 4, 3, 24, 3))
sketch3.addConstraint(Sketcher.Constraint("Vertical", 5, 3, 25, 3))
sketch3.addConstraint(Sketcher.Constraint("Vertical", 6, 3, 26, 3))
sketch3.addConstraint(Sketcher.Constraint("Vertical", 7, 3, 27, 3))
sketch3.addConstraint(Sketcher.Constraint("Vertical", 8, 3, 28, 3))
sketch3.addConstraint(Sketcher.Constraint("Vertical", 9, 3, 29, 3))
sketch3.addConstraint(Sketcher.Constraint("Vertical", 10, 3, 30, 3))
sketch3.addConstraint(Sketcher.Constraint("Vertical", 11, 3, 31, 3))
sketch3.addConstraint(Sketcher.Constraint("Vertical", 12, 3, 32, 3))
sketch3.addConstraint(Sketcher.Constraint("Vertical", 13, 3, 33, 3))
sketch3.addConstraint(Sketcher.Constraint("Vertical", 14, 3, 34, 3))
sketch3.addConstraint(Sketcher.Constraint("Vertical", 15, 3, 35, 3))
sketch3.addConstraint(Sketcher.Constraint("Vertical", 16, 3, 36, 3))
sketch3.addConstraint(Sketcher.Constraint("Vertical", 17, 3, 37, 3))
sketch3.addConstraint(Sketcher.Constraint("Vertical", 18, 3, 38, 3))
sketch3.addConstraint(Sketcher.Constraint("Vertical", 19, 3, 39, 3))
sketch3.addConstraint(Sketcher.Constraint("Vertical", 20, 3, 40, 3))
sketch3.addConstraint(Sketcher.Constraint("Vertical", 0, 3, 41, 3))
sketch3.addConstraint(Sketcher.Constraint("Vertical", 42, 3, 43, 3))
sketch3.addConstraint(Sketcher.Constraint("Vertical", 43, 3, 44, 3))
sketch3.addConstraint(Sketcher.Constraint("Vertical", 44, 3, 45, 3))
sketch3.addConstraint(Sketcher.Constraint("Vertical", 45, 3, 46, 3))
sketch3.addConstraint(Sketcher.Constraint("Vertical", 46, 3, 47, 3))
sketch3.addConstraint(Sketcher.Constraint("Vertical", 47, 3, 48, 3))
sketch3.addConstraint(Sketcher.Constraint("Vertical", 48, 3, 49, 3))
sketch3.addConstraint(Sketcher.Constraint("Vertical", 49, 3, 50, 3))
sketch3.addConstraint(Sketcher.Constraint("Vertical", 50, 3, 51, 3))
sketch3.addConstraint(Sketcher.Constraint("Vertical", 51, 3, 52, 3))
sketch3.addConstraint(Sketcher.Constraint("Vertical", 52, 3, 53, 3))
sketch3.addConstraint(Sketcher.Constraint("Vertical", 53, 3, 54, 3))
sketch3.addConstraint(Sketcher.Constraint("Vertical", 54, 3, 55, 3))
sketch3.addConstraint(Sketcher.Constraint("Vertical", 55, 3, 56, 3))
sketch3.addConstraint(Sketcher.Constraint("Vertical", 56, 3, 57, 3))
sketch3.addConstraint(Sketcher.Constraint("Vertical", 57, 3, 58, 3))
sketch3.addConstraint(Sketcher.Constraint("Vertical", 58, 3, 59, 3))
sketch3.addConstraint(Sketcher.Constraint("Vertical", 59, 3, 60, 3))
sketch3.addConstraint(Sketcher.Constraint("Vertical", 60, 3, 61, 3))
sketch3.addConstraint(Sketcher.Constraint("Vertical", 61, 3, 62, 3))
sketch3.addConstraint(Sketcher.Constraint("Diameter", 0, Q("1 mm")))
sketch3.addConstraint(Sketcher.Constraint("DistanceX", -1, 1, 42, 3, Q("107.97 mm")))
sketch3.addConstraint(Sketcher.Constraint("DistanceX", -1, 1, 0, 3, Q("20.285 mm")))
sketch3.addConstraint(Sketcher.Constraint("DistanceY", 0, 3, -1, 1, Q("101.605 mm")))
sketch3.addConstraint(Sketcher.Constraint("DistanceX", -1, 1, 1, 3, Q("22.825 mm")))
sketch3.addConstraint(Sketcher.Constraint("DistanceX", -1, 1, 2, 3, Q("25.365 mm")))
sketch3.addConstraint(Sketcher.Constraint("DistanceX", -1, 1, 3, 3, Q("27.905 mm")))
sketch3.addConstraint(Sketcher.Constraint("DistanceX", -1, 1, 4, 3, Q("30.445 mm")))
sketch3.addConstraint(Sketcher.Constraint("DistanceX", -1, 1, 5, 3, Q("32.985 mm")))
sketch3.addConstraint(Sketcher.Constraint("DistanceX", -1, 1, 6, 3, Q("35.525 mm")))
sketch3.addConstraint(Sketcher.Constraint("DistanceX", -1, 1, 7, 3, Q("38.065 mm")))
sketch3.addConstraint(Sketcher.Constraint("DistanceX", -1, 1, 8, 3, Q("40.605 mm")))
sketch3.addConstraint(Sketcher.Constraint("DistanceX", -1, 1, 9, 3, Q("43.145 mm")))
sketch3.addConstraint(Sketcher.Constraint("DistanceX", -1, 1, 10, 3, Q("45.685 mm")))
sketch3.addConstraint(Sketcher.Constraint("DistanceX", -1, 1, 11, 3, Q("48.225 mm")))
sketch3.addConstraint(Sketcher.Constraint("DistanceX", -1, 1, 12, 3, Q("50.765 mm")))
sketch3.addConstraint(Sketcher.Constraint("DistanceX", -1, 1, 13, 3, Q("53.305 mm")))
sketch3.addConstraint(Sketcher.Constraint("DistanceX", -1, 1, 14, 3, Q("55.845 mm")))
sketch3.addConstraint(Sketcher.Constraint("DistanceX", -1, 1, 15, 3, Q("58.385 mm")))
sketch3.addConstraint(Sketcher.Constraint("DistanceX", -1, 1, 16, 3, Q("60.925 mm")))
sketch3.addConstraint(Sketcher.Constraint("DistanceX", -1, 1, 17, 3, Q("63.465 mm")))
sketch3.addConstraint(Sketcher.Constraint("DistanceX", -1, 1, 18, 3, Q("66.005 mm")))
sketch3.addConstraint(Sketcher.Constraint("DistanceX", -1, 1, 19, 3, Q("68.545 mm")))
sketch3.addConstraint(Sketcher.Constraint("DistanceX", -1, 1, 20, 3, Q("71.085 mm")))
sketch3.addConstraint(Sketcher.Constraint("DistanceY", 21, 3, -1, 1, Q("99.065 mm")))
sketch3.addConstraint(Sketcher.Constraint("DistanceY", 42, 3, -1, 1, Q("101.565 mm")))
sketch3.addConstraint(Sketcher.Constraint("DistanceY", 43, 3, -1, 1, Q("99.025 mm")))
sketch3.addConstraint(Sketcher.Constraint("DistanceY", 44, 3, -1, 1, Q("96.485 mm")))
sketch3.addConstraint(Sketcher.Constraint("DistanceY", 45, 3, -1, 1, Q("93.945 mm")))
sketch3.addConstraint(Sketcher.Constraint("DistanceY", 46, 3, -1, 1, Q("91.405 mm")))
sketch3.addConstraint(Sketcher.Constraint("DistanceY", 47, 3, -1, 1, Q("88.865 mm")))
sketch3.addConstraint(Sketcher.Constraint("DistanceY", 48, 3, -1, 1, Q("86.325 mm")))
sketch3.addConstraint(Sketcher.Constraint("DistanceY", 49, 3, -1, 1, Q("83.785 mm")))
sketch3.addConstraint(Sketcher.Constraint("DistanceY", 50, 3, -1, 1, Q("81.245 mm")))
sketch3.addConstraint(Sketcher.Constraint("DistanceY", 51, 3, -1, 1, Q("78.705 mm")))
sketch3.addConstraint(Sketcher.Constraint("DistanceY", 52, 3, -1, 1, Q("76.165 mm")))
sketch3.addConstraint(Sketcher.Constraint("DistanceY", 53, 3, -1, 1, Q("73.625 mm")))
sketch3.addConstraint(Sketcher.Constraint("DistanceY", 54, 3, -1, 1, Q("71.085 mm")))
sketch3.addConstraint(Sketcher.Constraint("DistanceY", 55, 3, -1, 1, Q("68.545 mm")))
sketch3.addConstraint(Sketcher.Constraint("DistanceY", 56, 3, -1, 1, Q("66.005 mm")))
sketch3.addConstraint(Sketcher.Constraint("DistanceY", 57, 3, -1, 1, Q("63.465 mm")))
sketch3.addConstraint(Sketcher.Constraint("DistanceY", 58, 3, -1, 1, Q("60.925 mm")))
sketch3.addConstraint(Sketcher.Constraint("DistanceY", 59, 3, -1, 1, Q("58.385 mm")))
sketch3.addConstraint(Sketcher.Constraint("DistanceY", 60, 3, -1, 1, Q("55.845 mm")))
sketch3.addConstraint(Sketcher.Constraint("DistanceY", 61, 3, -1, 1, Q("53.305 mm")))
sketch3.addConstraint(Sketcher.Constraint("DistanceY", 62, 3, -1, 1, Q("50.765 mm")))
pocket1 = body.newObject("PartDesign::Pocket", "Pocket")
pocket1.Profile = sketch3
pocket1.Type = "ThroughAll"
pocket1.Reversed = True

doc.recompute()
